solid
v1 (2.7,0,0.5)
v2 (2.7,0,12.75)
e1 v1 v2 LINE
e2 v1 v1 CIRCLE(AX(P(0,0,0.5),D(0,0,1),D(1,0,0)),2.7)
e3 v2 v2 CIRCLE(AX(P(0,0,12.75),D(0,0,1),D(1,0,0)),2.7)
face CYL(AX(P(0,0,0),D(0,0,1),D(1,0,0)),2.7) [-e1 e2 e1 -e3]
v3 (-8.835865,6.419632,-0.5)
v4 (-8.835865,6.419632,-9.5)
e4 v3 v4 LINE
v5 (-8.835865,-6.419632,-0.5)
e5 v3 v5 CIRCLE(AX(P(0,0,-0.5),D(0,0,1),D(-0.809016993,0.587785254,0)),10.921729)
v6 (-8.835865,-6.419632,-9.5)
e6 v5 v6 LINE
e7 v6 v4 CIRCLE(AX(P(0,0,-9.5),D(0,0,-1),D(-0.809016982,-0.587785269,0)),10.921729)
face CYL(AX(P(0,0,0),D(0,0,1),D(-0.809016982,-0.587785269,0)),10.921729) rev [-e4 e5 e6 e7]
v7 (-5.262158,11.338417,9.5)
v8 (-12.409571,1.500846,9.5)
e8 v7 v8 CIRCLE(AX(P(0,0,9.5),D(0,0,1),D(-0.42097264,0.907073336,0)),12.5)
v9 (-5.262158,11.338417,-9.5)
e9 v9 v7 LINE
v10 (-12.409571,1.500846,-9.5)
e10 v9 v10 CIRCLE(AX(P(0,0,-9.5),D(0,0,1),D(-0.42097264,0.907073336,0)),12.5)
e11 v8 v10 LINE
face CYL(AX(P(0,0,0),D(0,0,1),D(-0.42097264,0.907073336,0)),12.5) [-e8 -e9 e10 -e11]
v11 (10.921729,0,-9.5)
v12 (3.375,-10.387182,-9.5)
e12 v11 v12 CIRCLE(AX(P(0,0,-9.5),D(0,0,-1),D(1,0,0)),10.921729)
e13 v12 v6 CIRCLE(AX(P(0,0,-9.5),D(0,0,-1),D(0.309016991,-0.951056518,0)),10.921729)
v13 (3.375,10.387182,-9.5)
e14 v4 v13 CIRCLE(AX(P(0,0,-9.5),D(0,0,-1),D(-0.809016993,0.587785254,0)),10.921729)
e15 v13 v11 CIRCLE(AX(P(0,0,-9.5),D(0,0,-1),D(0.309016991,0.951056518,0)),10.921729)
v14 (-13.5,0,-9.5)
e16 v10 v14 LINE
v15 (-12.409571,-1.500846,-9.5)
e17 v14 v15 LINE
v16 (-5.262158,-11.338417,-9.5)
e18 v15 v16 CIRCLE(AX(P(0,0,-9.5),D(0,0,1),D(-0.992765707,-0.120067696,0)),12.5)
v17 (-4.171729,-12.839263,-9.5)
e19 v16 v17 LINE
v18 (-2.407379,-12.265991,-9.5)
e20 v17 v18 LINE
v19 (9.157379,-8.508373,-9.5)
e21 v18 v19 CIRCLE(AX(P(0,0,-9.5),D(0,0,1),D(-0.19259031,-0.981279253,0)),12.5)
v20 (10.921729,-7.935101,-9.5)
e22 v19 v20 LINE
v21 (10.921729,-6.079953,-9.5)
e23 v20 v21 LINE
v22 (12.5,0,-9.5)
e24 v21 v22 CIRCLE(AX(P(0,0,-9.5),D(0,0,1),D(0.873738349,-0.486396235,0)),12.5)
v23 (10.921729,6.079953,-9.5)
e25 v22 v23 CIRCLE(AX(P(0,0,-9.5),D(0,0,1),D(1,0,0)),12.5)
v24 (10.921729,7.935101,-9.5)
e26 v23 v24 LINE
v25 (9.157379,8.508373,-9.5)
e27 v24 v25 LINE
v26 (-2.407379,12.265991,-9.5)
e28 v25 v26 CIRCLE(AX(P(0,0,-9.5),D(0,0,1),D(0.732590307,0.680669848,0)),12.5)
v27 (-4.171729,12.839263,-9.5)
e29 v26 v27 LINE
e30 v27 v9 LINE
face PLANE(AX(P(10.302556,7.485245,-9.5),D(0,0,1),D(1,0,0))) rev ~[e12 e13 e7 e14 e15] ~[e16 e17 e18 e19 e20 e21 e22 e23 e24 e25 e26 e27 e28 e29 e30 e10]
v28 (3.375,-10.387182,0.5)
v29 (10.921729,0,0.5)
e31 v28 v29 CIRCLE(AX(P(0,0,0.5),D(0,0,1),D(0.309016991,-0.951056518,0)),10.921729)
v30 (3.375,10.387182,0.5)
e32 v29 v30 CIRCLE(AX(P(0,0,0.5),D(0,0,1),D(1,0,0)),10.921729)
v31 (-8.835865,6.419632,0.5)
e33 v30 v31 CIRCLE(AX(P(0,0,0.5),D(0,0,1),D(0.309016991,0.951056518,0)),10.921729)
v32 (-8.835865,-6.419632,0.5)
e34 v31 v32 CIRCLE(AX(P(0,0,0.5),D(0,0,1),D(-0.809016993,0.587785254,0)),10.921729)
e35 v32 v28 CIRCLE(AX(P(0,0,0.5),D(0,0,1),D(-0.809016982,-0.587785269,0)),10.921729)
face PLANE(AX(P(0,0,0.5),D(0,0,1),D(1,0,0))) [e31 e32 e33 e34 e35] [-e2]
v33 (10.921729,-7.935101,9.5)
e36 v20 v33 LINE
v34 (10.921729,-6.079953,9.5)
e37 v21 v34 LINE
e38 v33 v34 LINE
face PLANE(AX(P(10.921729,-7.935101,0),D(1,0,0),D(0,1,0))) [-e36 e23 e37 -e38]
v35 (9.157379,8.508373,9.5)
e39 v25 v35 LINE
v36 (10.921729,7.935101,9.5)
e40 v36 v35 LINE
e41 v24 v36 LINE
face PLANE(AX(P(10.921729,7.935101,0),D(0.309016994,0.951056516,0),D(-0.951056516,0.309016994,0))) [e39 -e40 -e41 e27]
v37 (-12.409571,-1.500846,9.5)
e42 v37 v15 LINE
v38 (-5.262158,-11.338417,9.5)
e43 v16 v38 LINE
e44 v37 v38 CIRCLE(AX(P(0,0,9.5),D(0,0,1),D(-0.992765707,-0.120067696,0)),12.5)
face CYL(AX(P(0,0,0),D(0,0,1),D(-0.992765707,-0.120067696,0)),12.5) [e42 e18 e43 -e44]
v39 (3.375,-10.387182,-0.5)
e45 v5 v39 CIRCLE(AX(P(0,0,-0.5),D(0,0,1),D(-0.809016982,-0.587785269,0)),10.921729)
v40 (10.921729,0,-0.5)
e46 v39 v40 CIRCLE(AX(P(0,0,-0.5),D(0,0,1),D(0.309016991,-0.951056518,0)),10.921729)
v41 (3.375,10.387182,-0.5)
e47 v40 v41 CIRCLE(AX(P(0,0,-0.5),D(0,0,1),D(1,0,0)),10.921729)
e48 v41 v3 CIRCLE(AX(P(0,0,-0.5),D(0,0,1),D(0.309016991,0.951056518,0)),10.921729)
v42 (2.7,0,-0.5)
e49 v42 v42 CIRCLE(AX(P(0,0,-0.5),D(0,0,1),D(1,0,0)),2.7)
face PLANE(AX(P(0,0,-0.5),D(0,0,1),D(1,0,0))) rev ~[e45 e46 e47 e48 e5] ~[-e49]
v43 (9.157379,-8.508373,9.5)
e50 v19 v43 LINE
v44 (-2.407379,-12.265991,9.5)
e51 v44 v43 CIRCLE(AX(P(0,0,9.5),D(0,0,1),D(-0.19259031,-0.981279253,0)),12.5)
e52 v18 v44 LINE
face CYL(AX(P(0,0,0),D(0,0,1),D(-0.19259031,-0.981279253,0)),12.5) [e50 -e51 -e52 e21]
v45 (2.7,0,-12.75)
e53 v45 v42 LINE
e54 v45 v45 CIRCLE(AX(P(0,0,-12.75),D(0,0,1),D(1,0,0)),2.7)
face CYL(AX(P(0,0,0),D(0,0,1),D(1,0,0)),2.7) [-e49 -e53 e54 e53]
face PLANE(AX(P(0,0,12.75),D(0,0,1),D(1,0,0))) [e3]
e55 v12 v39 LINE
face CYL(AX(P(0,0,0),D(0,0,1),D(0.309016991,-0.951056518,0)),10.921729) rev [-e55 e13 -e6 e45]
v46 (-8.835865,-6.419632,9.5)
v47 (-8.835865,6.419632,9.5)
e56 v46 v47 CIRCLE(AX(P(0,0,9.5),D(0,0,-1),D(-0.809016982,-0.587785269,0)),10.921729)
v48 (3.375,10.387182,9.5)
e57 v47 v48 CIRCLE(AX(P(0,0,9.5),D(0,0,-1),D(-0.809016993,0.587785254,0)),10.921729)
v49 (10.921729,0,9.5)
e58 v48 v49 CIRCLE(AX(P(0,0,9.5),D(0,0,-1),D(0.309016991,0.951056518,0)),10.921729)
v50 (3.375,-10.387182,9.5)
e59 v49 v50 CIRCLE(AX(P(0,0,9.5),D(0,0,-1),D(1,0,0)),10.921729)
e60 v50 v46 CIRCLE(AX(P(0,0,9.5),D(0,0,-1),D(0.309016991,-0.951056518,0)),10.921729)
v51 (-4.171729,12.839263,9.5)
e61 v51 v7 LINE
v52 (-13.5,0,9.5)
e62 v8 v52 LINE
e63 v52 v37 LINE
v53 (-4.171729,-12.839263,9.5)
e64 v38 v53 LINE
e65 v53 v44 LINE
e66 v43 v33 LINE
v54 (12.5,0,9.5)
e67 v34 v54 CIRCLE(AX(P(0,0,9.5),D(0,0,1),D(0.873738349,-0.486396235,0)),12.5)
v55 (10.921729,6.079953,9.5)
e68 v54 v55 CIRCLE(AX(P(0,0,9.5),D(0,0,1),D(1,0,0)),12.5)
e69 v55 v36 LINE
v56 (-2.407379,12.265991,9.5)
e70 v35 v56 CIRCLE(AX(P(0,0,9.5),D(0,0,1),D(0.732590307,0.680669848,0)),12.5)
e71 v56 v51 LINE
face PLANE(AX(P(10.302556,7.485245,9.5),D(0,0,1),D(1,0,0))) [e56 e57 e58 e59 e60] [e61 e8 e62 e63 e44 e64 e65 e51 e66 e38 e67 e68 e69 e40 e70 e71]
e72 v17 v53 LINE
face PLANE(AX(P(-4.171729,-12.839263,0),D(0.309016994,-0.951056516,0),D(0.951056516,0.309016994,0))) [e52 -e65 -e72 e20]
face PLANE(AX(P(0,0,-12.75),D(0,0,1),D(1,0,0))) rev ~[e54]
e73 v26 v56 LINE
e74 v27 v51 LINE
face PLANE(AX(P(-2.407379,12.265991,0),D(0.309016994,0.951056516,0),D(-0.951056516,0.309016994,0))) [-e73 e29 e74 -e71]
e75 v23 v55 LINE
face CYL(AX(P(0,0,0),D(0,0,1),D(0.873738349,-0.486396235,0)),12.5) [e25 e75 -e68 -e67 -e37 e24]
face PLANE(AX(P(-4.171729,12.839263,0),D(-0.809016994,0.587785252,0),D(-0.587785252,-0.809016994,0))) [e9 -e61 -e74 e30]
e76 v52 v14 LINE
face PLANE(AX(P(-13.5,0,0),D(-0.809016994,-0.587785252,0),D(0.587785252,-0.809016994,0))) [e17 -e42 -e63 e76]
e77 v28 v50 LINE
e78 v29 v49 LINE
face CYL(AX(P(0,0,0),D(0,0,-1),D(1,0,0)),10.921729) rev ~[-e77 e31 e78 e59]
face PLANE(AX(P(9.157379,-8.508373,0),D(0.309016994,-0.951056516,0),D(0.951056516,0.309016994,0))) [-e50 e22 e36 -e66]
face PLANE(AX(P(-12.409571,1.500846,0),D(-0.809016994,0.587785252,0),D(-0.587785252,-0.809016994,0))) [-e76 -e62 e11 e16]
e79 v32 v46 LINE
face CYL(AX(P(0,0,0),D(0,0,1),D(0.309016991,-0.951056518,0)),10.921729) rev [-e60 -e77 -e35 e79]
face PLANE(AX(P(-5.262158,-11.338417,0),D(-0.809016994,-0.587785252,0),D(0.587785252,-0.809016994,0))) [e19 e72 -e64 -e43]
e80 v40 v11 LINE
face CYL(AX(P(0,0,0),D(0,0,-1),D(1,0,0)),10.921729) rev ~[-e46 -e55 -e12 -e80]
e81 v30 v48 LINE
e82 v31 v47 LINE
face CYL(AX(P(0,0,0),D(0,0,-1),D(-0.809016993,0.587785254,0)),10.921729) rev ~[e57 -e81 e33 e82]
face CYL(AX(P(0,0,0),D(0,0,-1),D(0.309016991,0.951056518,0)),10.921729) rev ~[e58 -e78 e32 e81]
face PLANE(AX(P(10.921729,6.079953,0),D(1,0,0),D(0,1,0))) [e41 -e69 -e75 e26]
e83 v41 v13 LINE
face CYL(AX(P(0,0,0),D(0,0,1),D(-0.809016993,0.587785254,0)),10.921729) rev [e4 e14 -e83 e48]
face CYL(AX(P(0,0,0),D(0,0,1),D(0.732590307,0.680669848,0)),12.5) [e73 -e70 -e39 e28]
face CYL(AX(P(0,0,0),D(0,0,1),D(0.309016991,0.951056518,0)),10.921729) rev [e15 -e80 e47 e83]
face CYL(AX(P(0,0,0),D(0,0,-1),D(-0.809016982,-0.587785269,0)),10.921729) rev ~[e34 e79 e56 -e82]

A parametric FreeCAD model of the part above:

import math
import FreeCAD as App
import Part
import Sketcher
Q = App.Units.Quantity

doc = App.newDocument("Part")
body = doc.addObject("PartDesign::Body", "Body")

# Sketch on XY plane
sketch1 = body.newObject("Sketcher::SketchObject", "Sketch")
sketch1.AttachmentSupport = (doc.getObject("XY_Plane"), [""])
sketch1.MapMode = "FlatFace"
sketch1.addGeometry([
    Part.ArcOfCircle(Part.Circle(App.Vector(0, 0, 0), App.Vector(0, 0, 1), 12.5), math.radians(-173), math.radians(-115)),  # 0
    Part.LineSegment(App.Vector(-5.3, -11.3, 0), App.Vector(-4.2, -12.8, 0)),  # 1
    Part.LineSegment(App.Vector(-4.2, -12.8, 0), App.Vector(-2.4, -12.3, 0)),  # 2
    Part.ArcOfCircle(Part.Circle(App.Vector(0, 0, 0), App.Vector(0, 0, 1), 12.5), math.radians(-101), math.radians(-43)),  # 3
    Part.LineSegment(App.Vector(9.2, -8.5, 0), App.Vector(10.9, -7.9, 0)),  # 4
    Part.LineSegment(App.Vector(10.9, -7.9, 0), App.Vector(10.9, -6.1, 0)),  # 5
    Part.ArcOfCircle(Part.Circle(App.Vector(0, 0, 0), App.Vector(0, 0, 1), 12.5), math.radians(-29), math.radians(0)),  # 6
    Part.ArcOfCircle(Part.Circle(App.Vector(0, 0, 0), App.Vector(0, 0, 1), 12.5), math.radians(0), math.radians(29)),  # 7
    Part.LineSegment(App.Vector(10.9, 6.1, 0), App.Vector(10.9, 7.9, 0)),  # 8
    Part.LineSegment(App.Vector(10.9, 7.9, 0), App.Vector(9.2, 8.5, 0)),  # 9
    Part.ArcOfCircle(Part.Circle(App.Vector(0, 0, 0), App.Vector(0, 0, 1), 12.5), math.radians(43), math.radians(101)),  # 10
    Part.LineSegment(App.Vector(-2.4, 12.3, 0), App.Vector(-4.2, 12.8, 0)),  # 11
    Part.LineSegment(App.Vector(-4.2, 12.8, 0), App.Vector(-5.3, 11.3, 0)),  # 12
    Part.ArcOfCircle(Part.Circle(App.Vector(0, 0, 0), App.Vector(0, 0, 1), 12.5), math.radians(115), math.radians(173)),  # 13
    Part.LineSegment(App.Vector(-12.4, 1.5, 0), App.Vector(-13.5, 0, 0)),  # 14
    Part.LineSegment(App.Vector(-13.5, 0, 0), App.Vector(-12.4, -1.5, 0)),  # 15
    Part.ArcOfCircle(Part.Circle(App.Vector(0, 0, 0), App.Vector(0, 0, 1), 10.9), math.radians(-144), math.radians(-72)),  # 16
    Part.ArcOfCircle(Part.Circle(App.Vector(0, 0, 0), App.Vector(0, 0, 1), 10.9), math.radians(144), math.radians(216)),  # 17
    Part.ArcOfCircle(Part.Circle(App.Vector(0, 0, 0), App.Vector(0, 0, 1), 10.9), math.radians(72), math.radians(144)),  # 18
    Part.ArcOfCircle(Part.Circle(App.Vector(0, 0, 0), App.Vector(0, 0, 1), 10.9), math.radians(0), math.radians(72)),  # 19
    Part.ArcOfCircle(Part.Circle(App.Vector(0, 0, 0), App.Vector(0, 0, 1), 10.9), math.radians(-72), math.radians(0)),  # 20
], False)
sketch1.addConstraint([
    Sketcher.Constraint("Coincident", 0, 2, 1, 1),
    Sketcher.Constraint("Coincident", 1, 2, 2, 1),
    Sketcher.Constraint("Coincident", 2, 2, 3, 1),
    Sketcher.Constraint("Coincident", 3, 2, 4, 1),
    Sketcher.Constraint("Coincident", 4, 2, 5, 1),
    Sketcher.Constraint("Coincident", 5, 2, 6, 1),
    Sketcher.Constraint("Tangent", 6, 2, 7, 1),
    Sketcher.Constraint("Coincident", 7, 2, 8, 1),
    Sketcher.Constraint("Coincident", 8, 2, 9, 1),
    Sketcher.Constraint("Coincident", 9, 2, 10, 1),
    Sketcher.Constraint("Coincident", 10, 2, 11, 1),
    Sketcher.Constraint("Coincident", 11, 2, 12, 1),
    Sketcher.Constraint("Coincident", 12, 2, 13, 1),
    Sketcher.Constraint("Coincident", 13, 2, 14, 1),
    Sketcher.Constraint("Coincident", 14, 2, 15, 1),
    Sketcher.Constraint("Coincident", 15, 2, 0, 1),
    Sketcher.Constraint("Tangent", 16, 1, 17, 2),
    Sketcher.Constraint("Tangent", 17, 1, 18, 2),
    Sketcher.Constraint("Tangent", 18, 1, 19, 2),
    Sketcher.Constraint("Tangent", 19, 1, 20, 2),
    Sketcher.Constraint("Tangent", 20, 1, 16, 2),
    Sketcher.Constraint("Vertical", 5),
    Sketcher.Constraint("Vertical", 8),
    Sketcher.Constraint("Coincident", 0, 3, -1, 1),
    Sketcher.Constraint("Coincident", 3, 3, -1, 1),
    Sketcher.Constraint("Coincident", 6, 3, -1, 1),
    Sketcher.Constraint("Coincident", 10, 3, -1, 1),
    Sketcher.Constraint("Coincident", 13, 3, -1, 1),
    Sketcher.Constraint("Coincident", 16, 3, -1, 1),
    Sketcher.Constraint("Coincident", 18, 3, -1, 1),
    Sketcher.Constraint("Equal", 0, 3),
    Sketcher.Constraint("Equal", 3, 6),
    Sketcher.Constraint("Equal", 6, 7),
    Sketcher.Constraint("Equal", 7, 10),
    Sketcher.Constraint("Equal", 10, 13),
    Sketcher.Constraint("Symmetric", 4, 2, 8, 2, -1),
    Sketcher.Constraint("Symmetric", 1, 2, 11, 2, -1),
    Sketcher.Constraint("PointOnObject", 6, 2, -1),
    Sketcher.Constraint("PointOnObject", 14, 2, -1),
    Sketcher.Constraint("PointOnObject", 19, 1, -1),
    Sketcher.Constraint("Parallel", 2, 4),
    Sketcher.Constraint("Parallel", 9, 11),
    Sketcher.Constraint("Parallel", 12, 14),
    Sketcher.Constraint("Parallel", 1, 15),
    Sketcher.Constraint("Vertical", 3, 2, 9, 2),
    Sketcher.Constraint("Vertical", 0, 2, 12, 2),
    Sketcher.Constraint("Vertical", 16, 1, 17, 1),
    Sketcher.Constraint("Vertical", 8, 2, 19, 1),
    Sketcher.Constraint("Vertical", 18, 1, 20, 1),
    Sketcher.Constraint("Equal", 1, 2),
    Sketcher.Constraint("Equal", 2, 4),
    Sketcher.Constraint("Equal", 12, 14),
    Sketcher.Constraint("Radius", 0, Q("12.5 mm")),
    Sketcher.Constraint("Angle", 1, Q("-54 deg")),
    Sketcher.Constraint("Angle", 2, Q("18 deg")),
    Sketcher.Constraint("DistanceX", 14, 2, -1, 1, Q("13.5 mm")),
    Sketcher.Constraint("Radius", 16, Q("10.921729 mm")),
    Sketcher.Constraint("DistanceX", -1, 1, 18, 1, Q("3.375 mm")),
    Sketcher.Constraint("DistanceY", 16, 1, -1, 1, Q("6.419632 mm")),
])
pad1 = body.newObject("PartDesign::Pad", "Pad")
pad1.Profile = sketch1
pad1.Length = 19
pad1.Midplane = True
body2 = doc.addObject("PartDesign::Body", "Body001")

# Sketch on XY plane
sketch2 = body2.newObject("Sketcher::SketchObject", "Sketch001")
sketch2.AttachmentSupport = (doc.getObject("XY_Plane001"), [""])
sketch2.MapMode = "FlatFace"
sketch2.addGeometry(Part.Circle(App.Vector(0, 0, 0), App.Vector(0, 0, 1), 2.7), False)
sketch2.addConstraint([
    Sketcher.Constraint("Coincident", 0, 3, -1, 1),
    Sketcher.Constraint("Diameter", 0, Q("5.4 mm")),
])
pad2 = body2.newObject("PartDesign::Pad", "Pad001")
pad2.Profile = sketch2
pad2.Length = 19
pad2.Midplane = True

# Sketch on XY plane
sketch3 = body2.newObject("Sketcher::SketchObject", "Sketch002")
sketch3.AttachmentSupport = (doc.getObject("XY_Plane001"), [""])
sketch3.MapMode = "FlatFace"
sketch3.addGeometry(Part.Circle(App.Vector(0, 0, 0), App.Vector(0, 0, 1), 2.7), False)
sketch3.addConstraint([
    Sketcher.Constraint("Coincident", 0, 3, -1, 1),
    Sketcher.Constraint("Diameter", 0, Q("5.4 mm")),
])
pad3 = body2.newObject("PartDesign::Pad", "Pad002")
pad3.Profile = sketch3
pad3.Length = 25.5
pad3.Midplane = True
body.AllowCompound = True
doc.recompute()

boolean = body.newObject("PartDesign::Boolean", "Boolean")
boolean.Type = "Fuse"
boolean.addObjects([body2])

# Sketch on XY plane
sketch4 = body.newObject("Sketcher::SketchObject", "Sketch003")
sketch4.AttachmentSupport = (doc.getObject("XY_Plane"), [""])
sketch4.MapMode = "FlatFace"
sketch4.addGeometry([
    Part.ArcOfCircle(Part.Circle(App.Vector(0, 0, 0), App.Vector(0, 0, 1), 10.9), math.radians(-72), math.radians(0)),  # 0
    Part.ArcOfCircle(Part.Circle(App.Vector(0, 0, 0), App.Vector(0, 0, 1), 10.9), math.radians(0), math.radians(72)),  # 1
    Part.ArcOfCircle(Part.Circle(App.Vector(0, 0, 0), App.Vector(0, 0, 1), 10.9), math.radians(72), math.radians(144)),  # 2
    Part.ArcOfCircle(Part.Circle(App.Vector(0, 0, 0), App.Vector(0, 0, 1), 10.9), math.radians(144), math.radians(216)),  # 3
    Part.ArcOfCircle(Part.Circle(App.Vector(0, 0, 0), App.Vector(0, 0, 1), 10.9), math.radians(-144), math.radians(-72)),  # 4
    Part.Circle(App.Vector(0, 0, 0), App.Vector(0, 0, 1), 2.7),  # 5
], False)
sketch4.addConstraint([
    Sketcher.Constraint("Tangent", 0, 2, 1, 1),
    Sketcher.Constraint("Tangent", 1, 2, 2, 1),
    Sketcher.Constraint("Tangent", 2, 2, 3, 1),
    Sketcher.Constraint("Tangent", 3, 2, 4, 1),
    Sketcher.Constraint("Tangent", 4, 2, 0, 1),
    Sketcher.Constraint("Coincident", 0, 3, -1, 1),
    Sketcher.Constraint("Coincident", 2, 3, -1, 1),
    Sketcher.Constraint("Coincident", 5, 3, -1, 1),
    Sketcher.Constraint("PointOnObject", 0, 2, -1),
    Sketcher.Constraint("Vertical", 2, 2, 3, 2),
    Sketcher.Constraint("Vertical", 1, 2, 4, 2),
    Sketcher.Constraint("Diameter", 5, Q("5.4 mm")),
    Sketcher.Constraint("Radius", 0, Q("10.921729 mm")),
    Sketcher.Constraint("DistanceX", -1, 1, 1, 2, Q("3.375 mm")),
    Sketcher.Constraint("DistanceY", -1, 1, 2, 2, Q("6.419632 mm")),
])
pad4 = body.newObject("PartDesign::Pad", "Pad003")
pad4.Profile = sketch4
pad4.Length = 1
pad4.Midplane = True

doc.recompute()
